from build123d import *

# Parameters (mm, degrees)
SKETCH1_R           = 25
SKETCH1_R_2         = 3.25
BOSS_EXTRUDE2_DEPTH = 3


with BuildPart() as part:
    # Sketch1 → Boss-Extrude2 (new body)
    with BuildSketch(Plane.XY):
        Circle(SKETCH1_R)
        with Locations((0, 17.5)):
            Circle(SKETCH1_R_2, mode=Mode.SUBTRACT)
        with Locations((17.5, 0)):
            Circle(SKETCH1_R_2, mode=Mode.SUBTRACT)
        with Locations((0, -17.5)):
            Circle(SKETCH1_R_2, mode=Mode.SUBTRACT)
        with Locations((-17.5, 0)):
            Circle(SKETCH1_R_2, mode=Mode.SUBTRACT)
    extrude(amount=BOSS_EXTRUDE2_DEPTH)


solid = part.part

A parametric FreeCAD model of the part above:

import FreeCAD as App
import Part
import Sketcher

doc = App.newDocument("Part")
body = doc.addObject("PartDesign::Body", "Body")

# Sketch on XY plane
sketch1 = body.newObject("Sketcher::SketchObject", "Sketch")
sketch1.AttachmentSupport = (doc.getObject("XY_Plane"), [""])
sketch1.MapMode = "FlatFace"
sketch1.addGeometry([
    Part.Circle(App.Vector(0, 0, 0), App.Vector(0, 0, 1), 25),  # 0
    Part.Circle(App.Vector(0, -17.5, 0), App.Vector(0, 0, 1), 3.25),  # 1
    Part.Circle(App.Vector(-17.5, 0, 0), App.Vector(0, 0, 1), 3.25),  # 2
    Part.Circle(App.Vector(17.5, 0, 0), App.Vector(0, 0, 1), 3.25),  # 3
    Part.Circle(App.Vector(0, 17.5, 0), App.Vector(0, 0, 1), 3.25),  # 4
], False)
sketch1.addConstraint([
    Sketcher.Constraint("Coincident", 0, 3, -1, 1),
    Sketcher.Constraint("Equal", 1, 2),
    Sketcher.Constraint("Equal", 2, 3),
    Sketcher.Constraint("Equal", 3, 4),
    Sketcher.Constraint("Symmetric", 2, 3, 3, 3, -1, 1),
    Sketcher.Constraint("Symmetric", 1, 3, 4, 3, -1, 1),
    Sketcher.Constraint("PointOnObject", 1, 3, -2),
    Sketcher.Constraint("PointOnObject", 2, 3, -1),
    Sketcher.Constraint("Diameter", 0, 50.0),
    Sketcher.Constraint("Diameter", 1, 6.5),
    Sketcher.Constraint("DistanceX", 2, 3, 3, 3, 35.0),
    Sketcher.Constraint("DistanceY", 1, 3, 4, 3, 35.0),
])
pad1 = body.newObject("PartDesign::Pad", "Pad")
pad1.Profile = sketch1
pad1.Length = 3

doc.recompute()
